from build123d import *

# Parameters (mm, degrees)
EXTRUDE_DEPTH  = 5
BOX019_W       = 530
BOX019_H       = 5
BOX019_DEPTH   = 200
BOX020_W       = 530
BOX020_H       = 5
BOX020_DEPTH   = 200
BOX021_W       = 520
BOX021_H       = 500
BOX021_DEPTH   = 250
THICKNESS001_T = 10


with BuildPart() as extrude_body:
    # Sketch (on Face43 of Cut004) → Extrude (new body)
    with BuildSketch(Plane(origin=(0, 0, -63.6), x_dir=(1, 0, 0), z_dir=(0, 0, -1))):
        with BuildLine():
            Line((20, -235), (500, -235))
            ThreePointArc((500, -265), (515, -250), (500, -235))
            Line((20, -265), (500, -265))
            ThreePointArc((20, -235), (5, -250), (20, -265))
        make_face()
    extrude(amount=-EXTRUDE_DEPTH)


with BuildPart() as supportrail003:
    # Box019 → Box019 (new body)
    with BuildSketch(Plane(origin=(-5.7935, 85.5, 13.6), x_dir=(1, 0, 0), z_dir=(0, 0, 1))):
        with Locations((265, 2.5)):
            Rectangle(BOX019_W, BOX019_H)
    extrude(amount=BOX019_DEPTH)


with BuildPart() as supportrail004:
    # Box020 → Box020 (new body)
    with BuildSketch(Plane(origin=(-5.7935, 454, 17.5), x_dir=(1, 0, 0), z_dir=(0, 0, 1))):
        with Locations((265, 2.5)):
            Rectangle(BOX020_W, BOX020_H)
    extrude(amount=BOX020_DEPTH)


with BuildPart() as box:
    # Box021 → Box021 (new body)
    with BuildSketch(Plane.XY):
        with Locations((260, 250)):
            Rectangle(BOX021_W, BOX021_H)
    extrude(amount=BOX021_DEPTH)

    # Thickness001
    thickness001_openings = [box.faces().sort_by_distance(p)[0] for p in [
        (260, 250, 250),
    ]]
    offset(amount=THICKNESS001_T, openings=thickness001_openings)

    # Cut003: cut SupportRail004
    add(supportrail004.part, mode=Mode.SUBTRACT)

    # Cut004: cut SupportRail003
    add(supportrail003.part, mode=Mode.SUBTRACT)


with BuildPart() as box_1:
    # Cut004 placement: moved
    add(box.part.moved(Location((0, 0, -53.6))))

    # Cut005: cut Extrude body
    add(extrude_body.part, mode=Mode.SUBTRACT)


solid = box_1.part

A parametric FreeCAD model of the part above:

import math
import FreeCAD as App
import Part
import Sketcher
from FreeCAD import Vector


def faces_at(feature, points):
    """Names of the faces that lie closest to the given points."""
    faces = feature.Shape.Faces
    near = lambda p: min(range(len(faces)), key=lambda i: faces[i].distToShape(Part.Vertex(*p))[0])
    return sorted({f"Face{near(p) + 1}" for p in points})

doc = App.newDocument("Part")
body = doc.addObject("PartDesign::Body", "Body")

# Sketch on XY plane
sketch1 = body.newObject("Sketcher::SketchObject", "Sketch")
sketch1.AttachmentSupport = (doc.getObject("XY_Plane"), [""])
sketch1.MapMode = "FlatFace"
sketch1.AttachmentOffset = App.Placement(Vector(0, 0, -63.6), App.Rotation())
sketch1.addGeometry([
    Part.LineSegment(Vector(500, 235, 0), Vector(20, 235, 0)),
    Part.ArcOfCircle(Part.Circle(Vector(20, 250, 0), Vector(0, 0, 1), 15), math.radians(90), math.radians(270)),
    Part.LineSegment(Vector(20, 265, 0), Vector(500, 265, 0)),
    Part.ArcOfCircle(Part.Circle(Vector(500, 250, 0), Vector(0, 0, 1), 15), math.radians(-90), math.radians(90)),
], False)
sketch1.addConstraint([
    Sketcher.Constraint("Tangent", 0, 2, 1, 2),
    Sketcher.Constraint("Tangent", 1, 1, 2, 1),
    Sketcher.Constraint("Tangent", 2, 2, 3, 2),
    Sketcher.Constraint("Tangent", 3, 1, 0, 1),
    Sketcher.Constraint("Horizontal", 0),
    Sketcher.Constraint("Horizontal", 2),
    Sketcher.Constraint("Radius", 1, 15.0),
    Sketcher.Constraint("DistanceX", 0, 2, 0, 1, 480.0),
    Sketcher.Constraint("DistanceX", -1, 1, 1, 3, 20.0),
    Sketcher.Constraint("DistanceY", -1, 1, 1, 3, 250.0),
])
pad1 = body.newObject("PartDesign::Pad", "Pad")
pad1.Profile = sketch1
pad1.Length = 5
body2 = doc.addObject("PartDesign::Body", "Body001")

# Sketch on XY plane
sketch2 = body2.newObject("Sketcher::SketchObject", "Sketch001")
sketch2.AttachmentSupport = (doc.getObject("XY_Plane001"), [""])
sketch2.MapMode = "FlatFace"
sketch2.AttachmentOffset = App.Placement(Vector(0, 0, 13.6), App.Rotation())
sketch2.addGeometry([
    Part.LineSegment(Vector(-5.7935, 90.5, 0), Vector(-5.7935, 85.5, 0)),
    Part.LineSegment(Vector(-5.7935, 85.5, 0), Vector(524.2065, 85.5, 0)),
    Part.LineSegment(Vector(524.2065, 85.5, 0), Vector(524.2065, 90.5, 0)),
    Part.LineSegment(Vector(524.2065, 90.5, 0), Vector(-5.7935, 90.5, 0)),
], False)
sketch2.addConstraint([
    Sketcher.Constraint("Coincident", 0, 2, 1, 1),
    Sketcher.Constraint("Coincident", 1, 2, 2, 1),
    Sketcher.Constraint("Coincident", 2, 2, 3, 1),
    Sketcher.Constraint("Coincident", 3, 2, 0, 1),
    Sketcher.Constraint("Vertical", 0),
    Sketcher.Constraint("Horizontal", 1),
    Sketcher.Constraint("Vertical", 2),
    Sketcher.Constraint("Horizontal", 3),
    Sketcher.Constraint("DistanceX", 1, 1, 1, 2, 530.0),
    Sketcher.Constraint("DistanceY", 0, 2, 0, 1, 5.0),
    Sketcher.Constraint("DistanceY", -1, 1, 0, 2, 85.5),
    Sketcher.Constraint("DistanceX", 0, 2, -1, 1, 5.7935),
])
pad2 = body2.newObject("PartDesign::Pad", "Pad001")
pad2.Profile = sketch2
pad2.Length = 200
body3 = doc.addObject("PartDesign::Body", "Body002")

# Sketch on XY plane
sketch3 = body3.newObject("Sketcher::SketchObject", "Sketch002")
sketch3.AttachmentSupport = (doc.getObject("XY_Plane002"), [""])
sketch3.MapMode = "FlatFace"
sketch3.AttachmentOffset = App.Placement(Vector(0, 0, 17.5), App.Rotation())
sketch3.addGeometry([
    Part.LineSegment(Vector(-5.7935, 459, 0), Vector(-5.7935, 454, 0)),
    Part.LineSegment(Vector(-5.7935, 454, 0), Vector(524.2065, 454, 0)),
    Part.LineSegment(Vector(524.2065, 454, 0), Vector(524.2065, 459, 0)),
    Part.LineSegment(Vector(524.2065, 459, 0), Vector(-5.7935, 459, 0)),
], False)
sketch3.addConstraint([
    Sketcher.Constraint("Coincident", 0, 2, 1, 1),
    Sketcher.Constraint("Coincident", 1, 2, 2, 1),
    Sketcher.Constraint("Coincident", 2, 2, 3, 1),
    Sketcher.Constraint("Coincident", 3, 2, 0, 1),
    Sketcher.Constraint("Vertical", 0),
    Sketcher.Constraint("Horizontal", 1),
    Sketcher.Constraint("Vertical", 2),
    Sketcher.Constraint("Horizontal", 3),
    Sketcher.Constraint("DistanceX", 1, 1, 1, 2, 530.0),
    Sketcher.Constraint("DistanceY", 0, 2, 0, 1, 5.0),
    Sketcher.Constraint("DistanceY", -1, 1, 0, 2, 454.0),
    Sketcher.Constraint("DistanceX", 0, 2, -1, 1, 5.7935),
])
pad3 = body3.newObject("PartDesign::Pad", "Pad002")
pad3.Profile = sketch3
pad3.Length = 200
body4 = doc.addObject("PartDesign::Body", "Body003")

# Sketch on XY plane
sketch4 = body4.newObject("Sketcher::SketchObject", "Sketch003")
sketch4.AttachmentSupport = (doc.getObject("XY_Plane003"), [""])
sketch4.MapMode = "FlatFace"
sketch4.addGeometry([
    Part.LineSegment(Vector(0, 500, 0), Vector(0, 0, 0)),
    Part.LineSegment(Vector(0, 0, 0), Vector(520, 0, 0)),
    Part.LineSegment(Vector(520, 0, 0), Vector(520, 500, 0)),
    Part.LineSegment(Vector(520, 500, 0), Vector(0, 500, 0)),
], False)
sketch4.addConstraint([
    Sketcher.Constraint("Coincident", 0, 2, 1, 1),
    Sketcher.Constraint("Coincident", 1, 2, 2, 1),
    Sketcher.Constraint("Coincident", 2, 2, 3, 1),
    Sketcher.Constraint("Coincident", 3, 2, 0, 1),
    Sketcher.Constraint("Vertical", 0),
    Sketcher.Constraint("Horizontal", 1),
    Sketcher.Constraint("Vertical", 2),
    Sketcher.Constraint("Horizontal", 3),
    Sketcher.Constraint("Coincident", 0, 2, -1, 1),
    Sketcher.Constraint("DistanceX", 1, 1, 1, 2, 520.0),
    Sketcher.Constraint("DistanceY", 0, 2, 0, 1, 500.0),
])
pad4 = body4.newObject("PartDesign::Pad", "Pad003")
pad4.Profile = sketch4
pad4.Length = 250
doc.recompute()

thickness = body4.newObject("PartDesign::Thickness", "Thickness")
thickness.Base = (pad4, faces_at(pad4, [(260, 250, 250)]))
thickness.Value = 10
thickness.Reversed = False
thickness.Join = "Arc"
doc.recompute()

boolean = body4.newObject("PartDesign::Boolean", "Boolean")
boolean.Type = "Cut"
boolean.addObjects([body3])
doc.recompute()

boolean2 = body4.newObject("PartDesign::Boolean", "Boolean001")
boolean2.Type = "Cut"
boolean2.addObjects([body2])
body5 = doc.addObject("PartDesign::Body", "Body004")
doc.recompute()

body4.Placement = App.Placement(Vector(0, 0, -53.6), App.Rotation(Vector(0, 0, 1), 0))
boolean3 = body5.newObject("PartDesign::Boolean", "Boolean002")
boolean3.Type = "Fuse"
boolean3.addObjects([body4])
doc.recompute()

boolean4 = body5.newObject("PartDesign::Boolean", "Boolean003")
boolean4.Type = "Cut"
boolean4.addObjects([body])

doc.recompute()
